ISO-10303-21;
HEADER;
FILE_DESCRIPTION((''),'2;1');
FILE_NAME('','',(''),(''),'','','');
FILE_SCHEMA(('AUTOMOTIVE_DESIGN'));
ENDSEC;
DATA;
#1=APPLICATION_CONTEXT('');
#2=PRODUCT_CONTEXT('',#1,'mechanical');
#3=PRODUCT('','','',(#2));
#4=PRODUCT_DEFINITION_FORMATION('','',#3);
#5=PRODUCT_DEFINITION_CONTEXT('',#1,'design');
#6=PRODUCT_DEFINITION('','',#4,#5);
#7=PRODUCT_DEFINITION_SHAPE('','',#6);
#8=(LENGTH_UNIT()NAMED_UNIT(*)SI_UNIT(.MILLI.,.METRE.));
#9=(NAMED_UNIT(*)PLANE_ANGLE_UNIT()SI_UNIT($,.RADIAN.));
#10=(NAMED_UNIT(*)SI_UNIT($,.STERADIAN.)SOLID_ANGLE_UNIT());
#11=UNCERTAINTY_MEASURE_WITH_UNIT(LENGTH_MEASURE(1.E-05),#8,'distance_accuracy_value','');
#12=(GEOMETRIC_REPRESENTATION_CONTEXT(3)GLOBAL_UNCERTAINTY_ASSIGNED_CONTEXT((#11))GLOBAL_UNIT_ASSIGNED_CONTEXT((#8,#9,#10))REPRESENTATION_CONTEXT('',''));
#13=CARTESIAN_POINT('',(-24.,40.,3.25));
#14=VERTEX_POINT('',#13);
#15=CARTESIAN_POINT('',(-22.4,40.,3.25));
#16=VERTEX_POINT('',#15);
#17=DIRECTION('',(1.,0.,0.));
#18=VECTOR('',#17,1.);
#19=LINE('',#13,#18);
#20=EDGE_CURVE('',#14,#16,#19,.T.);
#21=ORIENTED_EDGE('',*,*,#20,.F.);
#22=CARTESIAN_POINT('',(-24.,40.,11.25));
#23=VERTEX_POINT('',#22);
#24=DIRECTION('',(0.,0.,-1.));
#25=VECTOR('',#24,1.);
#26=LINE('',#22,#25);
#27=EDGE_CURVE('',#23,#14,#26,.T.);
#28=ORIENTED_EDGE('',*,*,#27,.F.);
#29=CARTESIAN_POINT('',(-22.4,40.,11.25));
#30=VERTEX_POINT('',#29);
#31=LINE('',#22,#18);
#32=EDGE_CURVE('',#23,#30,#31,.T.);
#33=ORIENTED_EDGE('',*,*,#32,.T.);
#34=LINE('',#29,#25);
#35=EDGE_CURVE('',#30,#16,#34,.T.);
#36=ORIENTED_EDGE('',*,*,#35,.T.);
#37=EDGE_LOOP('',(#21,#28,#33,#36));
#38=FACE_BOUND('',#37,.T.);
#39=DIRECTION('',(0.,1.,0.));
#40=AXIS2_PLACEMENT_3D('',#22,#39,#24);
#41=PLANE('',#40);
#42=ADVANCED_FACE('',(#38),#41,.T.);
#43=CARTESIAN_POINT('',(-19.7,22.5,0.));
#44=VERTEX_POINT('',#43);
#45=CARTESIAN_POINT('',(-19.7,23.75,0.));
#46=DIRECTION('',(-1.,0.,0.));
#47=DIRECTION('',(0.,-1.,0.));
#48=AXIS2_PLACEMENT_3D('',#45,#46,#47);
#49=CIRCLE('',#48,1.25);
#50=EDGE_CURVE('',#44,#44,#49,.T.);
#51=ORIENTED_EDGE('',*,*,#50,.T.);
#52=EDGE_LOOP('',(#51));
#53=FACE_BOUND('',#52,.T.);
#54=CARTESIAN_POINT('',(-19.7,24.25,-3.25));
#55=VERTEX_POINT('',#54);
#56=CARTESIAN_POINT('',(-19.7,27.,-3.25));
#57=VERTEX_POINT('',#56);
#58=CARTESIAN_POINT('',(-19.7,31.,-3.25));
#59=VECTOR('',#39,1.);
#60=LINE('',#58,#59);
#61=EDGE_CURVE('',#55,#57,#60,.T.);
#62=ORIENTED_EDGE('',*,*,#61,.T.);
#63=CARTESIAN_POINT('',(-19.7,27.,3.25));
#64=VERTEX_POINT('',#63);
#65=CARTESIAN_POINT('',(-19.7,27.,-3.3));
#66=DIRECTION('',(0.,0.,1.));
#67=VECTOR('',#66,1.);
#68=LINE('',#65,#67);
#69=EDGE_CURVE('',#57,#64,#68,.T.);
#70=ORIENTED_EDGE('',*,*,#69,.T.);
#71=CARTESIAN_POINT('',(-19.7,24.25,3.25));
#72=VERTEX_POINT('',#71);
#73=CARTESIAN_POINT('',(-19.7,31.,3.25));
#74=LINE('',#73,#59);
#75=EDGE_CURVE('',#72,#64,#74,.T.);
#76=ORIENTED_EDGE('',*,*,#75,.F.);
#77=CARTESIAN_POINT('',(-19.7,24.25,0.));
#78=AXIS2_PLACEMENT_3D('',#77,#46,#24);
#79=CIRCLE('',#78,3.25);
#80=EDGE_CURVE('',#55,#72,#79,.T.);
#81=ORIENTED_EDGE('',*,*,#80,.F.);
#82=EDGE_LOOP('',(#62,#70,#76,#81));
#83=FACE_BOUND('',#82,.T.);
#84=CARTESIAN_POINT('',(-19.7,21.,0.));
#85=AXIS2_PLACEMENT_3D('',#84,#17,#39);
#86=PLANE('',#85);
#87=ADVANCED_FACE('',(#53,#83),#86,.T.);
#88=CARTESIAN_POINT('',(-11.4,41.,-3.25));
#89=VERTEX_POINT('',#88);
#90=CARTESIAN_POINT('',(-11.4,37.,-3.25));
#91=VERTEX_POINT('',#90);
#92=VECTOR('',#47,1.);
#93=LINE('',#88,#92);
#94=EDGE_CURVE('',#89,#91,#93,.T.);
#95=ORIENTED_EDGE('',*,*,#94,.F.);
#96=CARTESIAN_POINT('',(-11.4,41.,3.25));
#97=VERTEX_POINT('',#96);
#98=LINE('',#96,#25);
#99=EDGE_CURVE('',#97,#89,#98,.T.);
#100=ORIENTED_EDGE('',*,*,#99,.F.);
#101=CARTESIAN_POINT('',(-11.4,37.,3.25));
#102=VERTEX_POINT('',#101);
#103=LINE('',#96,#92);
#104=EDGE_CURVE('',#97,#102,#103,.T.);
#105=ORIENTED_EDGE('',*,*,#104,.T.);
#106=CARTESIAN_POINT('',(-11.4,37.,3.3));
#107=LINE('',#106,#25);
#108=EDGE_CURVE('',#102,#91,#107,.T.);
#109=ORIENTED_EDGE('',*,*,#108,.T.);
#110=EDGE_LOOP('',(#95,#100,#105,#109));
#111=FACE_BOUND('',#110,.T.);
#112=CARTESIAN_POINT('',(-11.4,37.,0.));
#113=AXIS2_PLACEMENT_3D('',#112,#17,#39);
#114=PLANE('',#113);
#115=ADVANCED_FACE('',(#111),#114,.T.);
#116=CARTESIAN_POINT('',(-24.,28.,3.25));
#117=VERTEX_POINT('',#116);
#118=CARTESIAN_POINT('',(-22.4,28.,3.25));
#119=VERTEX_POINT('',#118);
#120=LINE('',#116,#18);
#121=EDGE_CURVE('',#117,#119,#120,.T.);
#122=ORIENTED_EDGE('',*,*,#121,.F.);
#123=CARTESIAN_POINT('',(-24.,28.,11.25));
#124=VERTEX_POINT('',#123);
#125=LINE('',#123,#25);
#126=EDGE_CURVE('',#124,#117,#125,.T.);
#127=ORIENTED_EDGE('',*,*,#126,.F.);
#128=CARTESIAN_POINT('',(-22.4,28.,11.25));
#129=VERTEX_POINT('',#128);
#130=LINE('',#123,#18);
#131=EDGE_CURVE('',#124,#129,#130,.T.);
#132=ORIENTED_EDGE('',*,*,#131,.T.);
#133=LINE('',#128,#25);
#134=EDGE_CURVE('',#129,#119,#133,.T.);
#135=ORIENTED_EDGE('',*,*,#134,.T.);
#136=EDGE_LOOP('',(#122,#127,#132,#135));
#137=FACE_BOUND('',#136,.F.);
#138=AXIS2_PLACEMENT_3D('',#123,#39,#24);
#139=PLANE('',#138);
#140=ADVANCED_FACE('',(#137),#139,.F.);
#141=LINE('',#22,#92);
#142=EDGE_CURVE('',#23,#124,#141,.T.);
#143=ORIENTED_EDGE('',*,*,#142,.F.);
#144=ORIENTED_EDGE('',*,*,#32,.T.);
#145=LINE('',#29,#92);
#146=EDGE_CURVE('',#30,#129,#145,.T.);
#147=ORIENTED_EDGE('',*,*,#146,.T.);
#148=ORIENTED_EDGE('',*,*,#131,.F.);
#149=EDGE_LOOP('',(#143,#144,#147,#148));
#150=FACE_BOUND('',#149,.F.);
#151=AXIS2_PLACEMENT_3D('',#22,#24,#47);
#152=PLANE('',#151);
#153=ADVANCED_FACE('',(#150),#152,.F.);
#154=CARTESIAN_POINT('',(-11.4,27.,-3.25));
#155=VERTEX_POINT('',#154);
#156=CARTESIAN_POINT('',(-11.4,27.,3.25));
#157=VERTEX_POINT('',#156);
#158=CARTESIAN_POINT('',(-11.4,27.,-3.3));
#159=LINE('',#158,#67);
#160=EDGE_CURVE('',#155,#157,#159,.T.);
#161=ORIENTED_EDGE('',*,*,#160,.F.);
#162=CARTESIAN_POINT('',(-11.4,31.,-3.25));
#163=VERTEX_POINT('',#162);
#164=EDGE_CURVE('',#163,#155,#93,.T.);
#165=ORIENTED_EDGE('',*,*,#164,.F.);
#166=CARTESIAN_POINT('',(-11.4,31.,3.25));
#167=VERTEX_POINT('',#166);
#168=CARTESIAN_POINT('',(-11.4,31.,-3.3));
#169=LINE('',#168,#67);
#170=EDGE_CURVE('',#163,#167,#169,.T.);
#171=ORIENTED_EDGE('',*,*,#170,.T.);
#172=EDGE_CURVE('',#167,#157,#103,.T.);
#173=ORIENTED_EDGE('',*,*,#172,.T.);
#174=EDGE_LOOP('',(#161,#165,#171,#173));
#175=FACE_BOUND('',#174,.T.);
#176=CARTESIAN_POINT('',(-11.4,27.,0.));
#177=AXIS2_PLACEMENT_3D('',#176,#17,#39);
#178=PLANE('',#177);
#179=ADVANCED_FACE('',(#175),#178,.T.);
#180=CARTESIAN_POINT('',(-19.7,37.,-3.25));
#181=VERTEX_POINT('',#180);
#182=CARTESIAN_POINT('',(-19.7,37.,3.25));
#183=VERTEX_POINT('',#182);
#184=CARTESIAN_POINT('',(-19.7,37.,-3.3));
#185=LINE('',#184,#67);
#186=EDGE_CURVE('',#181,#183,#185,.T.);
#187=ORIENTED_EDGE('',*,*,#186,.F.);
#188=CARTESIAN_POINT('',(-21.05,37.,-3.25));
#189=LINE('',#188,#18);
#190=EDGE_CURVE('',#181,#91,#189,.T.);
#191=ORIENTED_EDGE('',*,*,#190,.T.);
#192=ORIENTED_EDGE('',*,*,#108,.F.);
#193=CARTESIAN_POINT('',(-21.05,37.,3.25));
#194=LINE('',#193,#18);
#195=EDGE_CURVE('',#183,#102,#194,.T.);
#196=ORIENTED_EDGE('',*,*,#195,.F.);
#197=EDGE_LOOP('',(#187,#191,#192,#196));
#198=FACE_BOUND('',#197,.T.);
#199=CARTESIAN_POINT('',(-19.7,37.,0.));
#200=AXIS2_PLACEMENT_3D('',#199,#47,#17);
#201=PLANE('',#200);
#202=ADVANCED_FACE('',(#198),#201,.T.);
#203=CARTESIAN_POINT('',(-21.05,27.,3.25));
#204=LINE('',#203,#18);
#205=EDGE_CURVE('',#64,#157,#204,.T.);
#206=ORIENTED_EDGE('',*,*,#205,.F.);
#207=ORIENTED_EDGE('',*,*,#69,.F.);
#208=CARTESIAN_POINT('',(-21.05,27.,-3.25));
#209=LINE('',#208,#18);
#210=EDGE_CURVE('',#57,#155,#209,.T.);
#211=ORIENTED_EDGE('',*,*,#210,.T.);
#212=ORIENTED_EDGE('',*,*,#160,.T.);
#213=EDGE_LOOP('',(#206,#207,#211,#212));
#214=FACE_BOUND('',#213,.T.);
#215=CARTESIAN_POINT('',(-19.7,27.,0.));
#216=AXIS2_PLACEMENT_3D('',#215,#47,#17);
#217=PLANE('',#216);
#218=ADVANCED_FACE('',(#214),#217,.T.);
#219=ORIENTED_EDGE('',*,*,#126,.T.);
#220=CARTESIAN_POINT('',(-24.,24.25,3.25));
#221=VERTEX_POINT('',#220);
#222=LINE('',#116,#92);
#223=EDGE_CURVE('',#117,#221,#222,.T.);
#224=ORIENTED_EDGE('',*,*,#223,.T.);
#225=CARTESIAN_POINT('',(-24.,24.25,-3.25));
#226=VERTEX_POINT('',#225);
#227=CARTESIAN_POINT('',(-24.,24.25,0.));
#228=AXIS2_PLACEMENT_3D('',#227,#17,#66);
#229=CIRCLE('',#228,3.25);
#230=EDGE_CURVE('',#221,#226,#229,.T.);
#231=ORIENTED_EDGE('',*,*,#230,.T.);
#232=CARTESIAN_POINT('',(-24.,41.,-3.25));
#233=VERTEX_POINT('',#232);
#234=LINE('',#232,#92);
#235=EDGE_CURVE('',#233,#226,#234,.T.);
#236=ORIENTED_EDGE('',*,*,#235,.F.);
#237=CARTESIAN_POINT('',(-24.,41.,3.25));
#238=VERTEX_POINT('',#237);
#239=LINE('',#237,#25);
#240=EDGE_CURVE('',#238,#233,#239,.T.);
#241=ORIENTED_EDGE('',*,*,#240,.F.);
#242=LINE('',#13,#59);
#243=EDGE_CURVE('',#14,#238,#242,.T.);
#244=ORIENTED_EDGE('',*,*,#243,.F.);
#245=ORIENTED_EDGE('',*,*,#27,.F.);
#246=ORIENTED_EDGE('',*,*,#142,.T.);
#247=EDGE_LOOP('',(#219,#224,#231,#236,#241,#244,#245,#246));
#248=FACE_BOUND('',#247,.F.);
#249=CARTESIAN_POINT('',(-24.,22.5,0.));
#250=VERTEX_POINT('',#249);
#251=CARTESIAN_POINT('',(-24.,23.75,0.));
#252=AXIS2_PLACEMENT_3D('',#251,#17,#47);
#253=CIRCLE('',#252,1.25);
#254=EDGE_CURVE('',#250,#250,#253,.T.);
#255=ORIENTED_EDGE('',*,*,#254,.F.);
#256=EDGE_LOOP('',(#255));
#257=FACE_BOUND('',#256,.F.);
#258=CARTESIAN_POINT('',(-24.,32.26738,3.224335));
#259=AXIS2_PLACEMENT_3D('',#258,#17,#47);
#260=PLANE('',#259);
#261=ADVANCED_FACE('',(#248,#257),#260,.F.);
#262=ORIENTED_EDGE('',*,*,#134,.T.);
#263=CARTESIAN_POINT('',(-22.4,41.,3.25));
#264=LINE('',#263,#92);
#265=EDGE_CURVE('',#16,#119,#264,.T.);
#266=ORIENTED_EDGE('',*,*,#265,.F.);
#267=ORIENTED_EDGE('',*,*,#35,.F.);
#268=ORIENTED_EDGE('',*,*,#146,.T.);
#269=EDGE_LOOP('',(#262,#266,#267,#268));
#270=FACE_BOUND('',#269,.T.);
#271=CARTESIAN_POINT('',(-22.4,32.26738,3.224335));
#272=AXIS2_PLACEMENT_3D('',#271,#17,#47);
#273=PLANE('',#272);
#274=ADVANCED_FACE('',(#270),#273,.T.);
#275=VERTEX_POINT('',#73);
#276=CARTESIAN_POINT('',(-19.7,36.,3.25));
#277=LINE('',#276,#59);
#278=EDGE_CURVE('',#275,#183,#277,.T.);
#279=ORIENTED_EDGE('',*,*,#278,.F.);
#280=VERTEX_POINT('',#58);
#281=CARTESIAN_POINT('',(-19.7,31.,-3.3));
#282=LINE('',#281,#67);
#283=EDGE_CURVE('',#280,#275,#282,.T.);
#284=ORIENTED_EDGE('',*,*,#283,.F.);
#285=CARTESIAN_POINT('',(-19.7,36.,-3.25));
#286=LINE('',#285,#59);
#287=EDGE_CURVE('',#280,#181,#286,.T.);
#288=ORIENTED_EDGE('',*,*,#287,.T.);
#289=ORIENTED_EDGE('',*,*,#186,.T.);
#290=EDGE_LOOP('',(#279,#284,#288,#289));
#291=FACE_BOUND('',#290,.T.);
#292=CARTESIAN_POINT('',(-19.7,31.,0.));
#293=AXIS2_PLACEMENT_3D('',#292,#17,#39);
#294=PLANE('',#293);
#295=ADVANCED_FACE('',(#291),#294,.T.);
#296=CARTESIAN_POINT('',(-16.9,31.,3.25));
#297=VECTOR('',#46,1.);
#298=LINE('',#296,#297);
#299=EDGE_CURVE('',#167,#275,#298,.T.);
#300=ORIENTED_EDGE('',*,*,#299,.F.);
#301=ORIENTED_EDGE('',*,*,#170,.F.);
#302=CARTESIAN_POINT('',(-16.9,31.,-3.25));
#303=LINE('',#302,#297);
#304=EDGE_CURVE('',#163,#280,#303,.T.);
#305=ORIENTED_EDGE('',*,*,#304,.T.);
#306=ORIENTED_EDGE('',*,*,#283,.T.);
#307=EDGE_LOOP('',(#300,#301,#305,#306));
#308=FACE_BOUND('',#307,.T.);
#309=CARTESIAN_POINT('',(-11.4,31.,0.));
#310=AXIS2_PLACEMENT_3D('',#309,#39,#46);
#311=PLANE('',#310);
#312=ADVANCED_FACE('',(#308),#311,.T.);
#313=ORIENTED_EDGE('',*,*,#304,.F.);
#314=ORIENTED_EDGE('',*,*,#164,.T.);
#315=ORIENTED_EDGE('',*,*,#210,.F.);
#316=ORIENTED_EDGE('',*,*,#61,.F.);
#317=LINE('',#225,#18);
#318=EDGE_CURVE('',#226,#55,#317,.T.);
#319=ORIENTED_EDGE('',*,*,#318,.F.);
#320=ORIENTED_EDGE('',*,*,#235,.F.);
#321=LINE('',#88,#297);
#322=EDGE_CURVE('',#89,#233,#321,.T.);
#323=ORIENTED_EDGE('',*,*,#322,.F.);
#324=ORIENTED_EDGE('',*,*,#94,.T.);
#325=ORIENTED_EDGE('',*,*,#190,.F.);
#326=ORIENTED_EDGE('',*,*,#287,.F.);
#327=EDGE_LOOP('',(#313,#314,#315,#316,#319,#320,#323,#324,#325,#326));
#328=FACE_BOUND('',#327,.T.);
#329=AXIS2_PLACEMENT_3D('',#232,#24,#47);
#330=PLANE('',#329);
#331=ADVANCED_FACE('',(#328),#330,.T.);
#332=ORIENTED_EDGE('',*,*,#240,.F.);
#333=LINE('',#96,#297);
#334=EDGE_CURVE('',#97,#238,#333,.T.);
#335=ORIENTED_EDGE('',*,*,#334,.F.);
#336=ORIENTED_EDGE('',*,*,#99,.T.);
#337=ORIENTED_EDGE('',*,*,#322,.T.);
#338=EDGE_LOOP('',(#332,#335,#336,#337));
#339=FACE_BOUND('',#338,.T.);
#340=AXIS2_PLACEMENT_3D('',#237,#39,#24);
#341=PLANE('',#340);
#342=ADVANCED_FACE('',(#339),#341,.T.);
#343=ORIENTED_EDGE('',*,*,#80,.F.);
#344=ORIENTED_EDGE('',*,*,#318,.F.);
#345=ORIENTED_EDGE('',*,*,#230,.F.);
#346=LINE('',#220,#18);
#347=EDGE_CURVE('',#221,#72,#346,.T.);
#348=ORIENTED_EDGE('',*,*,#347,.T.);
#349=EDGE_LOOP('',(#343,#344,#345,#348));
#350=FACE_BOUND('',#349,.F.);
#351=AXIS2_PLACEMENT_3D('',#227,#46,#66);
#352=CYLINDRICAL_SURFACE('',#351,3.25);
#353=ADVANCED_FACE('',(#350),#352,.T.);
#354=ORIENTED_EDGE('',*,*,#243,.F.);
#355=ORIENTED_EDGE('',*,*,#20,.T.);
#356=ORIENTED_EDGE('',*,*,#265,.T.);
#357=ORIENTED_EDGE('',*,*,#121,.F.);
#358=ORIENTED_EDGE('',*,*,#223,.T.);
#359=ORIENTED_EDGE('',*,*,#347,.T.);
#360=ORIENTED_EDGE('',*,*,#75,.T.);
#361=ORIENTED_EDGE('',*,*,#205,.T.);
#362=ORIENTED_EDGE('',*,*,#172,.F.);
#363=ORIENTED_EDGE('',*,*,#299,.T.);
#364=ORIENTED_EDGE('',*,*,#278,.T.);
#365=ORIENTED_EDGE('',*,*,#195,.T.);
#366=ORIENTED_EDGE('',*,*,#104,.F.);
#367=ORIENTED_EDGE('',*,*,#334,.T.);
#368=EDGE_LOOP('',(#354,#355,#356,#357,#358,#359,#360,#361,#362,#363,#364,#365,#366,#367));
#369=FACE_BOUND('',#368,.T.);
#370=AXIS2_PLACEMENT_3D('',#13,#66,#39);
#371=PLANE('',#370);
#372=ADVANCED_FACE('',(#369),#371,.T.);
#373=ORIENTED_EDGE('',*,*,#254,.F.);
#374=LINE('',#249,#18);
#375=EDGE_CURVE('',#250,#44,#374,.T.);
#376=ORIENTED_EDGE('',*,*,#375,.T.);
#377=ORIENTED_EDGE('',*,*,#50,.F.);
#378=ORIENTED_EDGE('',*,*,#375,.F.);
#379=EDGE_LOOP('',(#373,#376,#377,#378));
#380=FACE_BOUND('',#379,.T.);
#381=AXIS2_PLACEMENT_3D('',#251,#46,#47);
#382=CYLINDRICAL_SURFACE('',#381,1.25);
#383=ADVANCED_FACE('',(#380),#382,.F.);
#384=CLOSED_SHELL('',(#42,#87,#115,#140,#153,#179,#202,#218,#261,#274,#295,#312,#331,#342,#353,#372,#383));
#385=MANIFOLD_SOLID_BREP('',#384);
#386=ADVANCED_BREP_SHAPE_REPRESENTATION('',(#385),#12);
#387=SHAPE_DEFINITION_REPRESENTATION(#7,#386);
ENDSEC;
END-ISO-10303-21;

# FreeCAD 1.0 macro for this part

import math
import FreeCAD as App
import Part
import Sketcher


def add_polygon(sketch, points):
    """Adds a closed chain of lines whose ends are joined by coincident constraints."""
    first, n = sketch.GeometryCount, len(points)
    for a, b in zip(points, points[1:] + points[:1]):
        sketch.addGeometry(Part.LineSegment(App.Vector(*a, 0), App.Vector(*b, 0)), False)
    for i in range(n):
        sketch.addConstraint(Sketcher.Constraint("Coincident", first + i, 2, first + (i + 1) % n, 1))

doc = App.newDocument("Part")
body = doc.addObject("PartDesign::Body", "Body")

# Sketch on XY plane
sketch1 = body.newObject("Sketcher::SketchObject", "Sketch")
sketch1.AttachmentSupport = (doc.getObject("XY_Plane"), [""])
sketch1.MapMode = "FlatFace"
sketch1.addGeometry(Part.LineSegment(App.Vector(-6, 0, 0), App.Vector(6, 0, 0)), False)
sketch1.addGeometry(Part.LineSegment(App.Vector(6, 0, 0), App.Vector(6, 8, 0)), False)
sketch1.addGeometry(Part.LineSegment(App.Vector(6, 8, 0), App.Vector(9.8, 8, 0)), False)
sketch1.addGeometry(Part.ArcOfCircle(Part.Circle(App.Vector(9.8, 11.2, 0), App.Vector(0, 0, 1), 3.2), math.radians(-90), math.radians(90)), False)
sketch1.addGeometry(Part.LineSegment(App.Vector(9.8, 14.5, 0), App.Vector(-7, 14.5, 0)), False)
sketch1.addGeometry(Part.LineSegment(App.Vector(-7, 14.5, 0), App.Vector(-7, 8, 0)), False)
sketch1.addGeometry(Part.LineSegment(App.Vector(-7, 8, 0), App.Vector(-6, 8, 0)), False)
sketch1.addGeometry(Part.LineSegment(App.Vector(-6, 8, 0), App.Vector(-6, 0, 0)), False)
sketch1.addGeometry(Part.Circle(App.Vector(10.2, 11.2, 0), App.Vector(0, 0, 1), 1.2), False)
sketch1.addConstraint(Sketcher.Constraint("Coincident", 0, 2, 1, 1))
sketch1.addConstraint(Sketcher.Constraint("Coincident", 1, 2, 2, 1))
sketch1.addConstraint(Sketcher.Constraint("Tangent", 2, 2, 3, 1))
sketch1.addConstraint(Sketcher.Constraint("Tangent", 3, 2, 4, 1))
sketch1.addConstraint(Sketcher.Constraint("Coincident", 4, 2, 5, 1))
sketch1.addConstraint(Sketcher.Constraint("Coincident", 5, 2, 6, 1))
sketch1.addConstraint(Sketcher.Constraint("Coincident", 6, 2, 7, 1))
sketch1.addConstraint(Sketcher.Constraint("Coincident", 7, 2, 0, 1))
sketch1.addConstraint(Sketcher.Constraint("Horizontal", 0))
sketch1.addConstraint(Sketcher.Constraint("Vertical", 1))
sketch1.addConstraint(Sketcher.Constraint("Horizontal", 2))
sketch1.addConstraint(Sketcher.Constraint("Horizontal", 4))
sketch1.addConstraint(Sketcher.Constraint("Vertical", 5))
sketch1.addConstraint(Sketcher.Constraint("Horizontal", 6))
sketch1.addConstraint(Sketcher.Constraint("Vertical", 7))
sketch1.addConstraint(Sketcher.Constraint("Symmetric", 0, 2, 7, 2, -1, 1))
sketch1.addConstraint(Sketcher.Constraint("Horizontal", 3, 3, 8, 3))
sketch1.addConstraint(Sketcher.Constraint("Horizontal", 2, 2, 5, 2))
sketch1.addConstraint(Sketcher.Constraint("Diameter", 8, 2.5))
sketch1.addConstraint(Sketcher.Constraint("DistanceX", 0, 1, 0, 2, 12.0))
sketch1.addConstraint(Sketcher.Constraint("DistanceX", 6, 1, 6, 2, 1.0))
sketch1.addConstraint(Sketcher.Constraint("DistanceY", 1, 1, 1, 2, 8.0))
sketch1.addConstraint(Sketcher.Constraint("Radius", 3, 3.25))
sketch1.addConstraint(Sketcher.Constraint("DistanceX", 2, 1, 2, 2, 3.75))
sketch1.addConstraint(Sketcher.Constraint("DistanceX", 3, 3, 8, 3, 0.5))
pad1 = body.newObject("PartDesign::Pad", "Pad")
pad1.Profile = sketch1
pad1.Length = 1.6
body2 = doc.addObject("PartDesign::Body", "Body001")

# Sketch on XY plane
sketch2 = body2.newObject("Sketcher::SketchObject", "Sketch001")
sketch2.AttachmentSupport = (doc.getObject("XY_Plane001"), [""])
sketch2.MapMode = "FlatFace"
sketch2.addGeometry(Part.LineSegment(App.Vector(9.8, 3.2, 0), App.Vector(-7, 3.2, 0)), False)
sketch2.addGeometry(Part.LineSegment(App.Vector(-7, 3.2, 0), App.Vector(-7, -3.2, 0)), False)
sketch2.addGeometry(Part.LineSegment(App.Vector(-7, -3.2, 0), App.Vector(9.8, -3.2, 0)), False)
sketch2.addGeometry(Part.ArcOfCircle(Part.Circle(App.Vector(9.8, 0, 0), App.Vector(0, 0, 1), 3.2), math.radians(-90), math.radians(90)), False)
sketch2.addGeometry(Part.Circle(App.Vector(10.2, 0, 0), App.Vector(0, 0, 1), 1.2), False)
sketch2.addConstraint(Sketcher.Constraint("Coincident", 0, 2, 1, 1))
sketch2.addConstraint(Sketcher.Constraint("Coincident", 1, 2, 2, 1))
sketch2.addConstraint(Sketcher.Constraint("Tangent", 2, 2, 3, 1))
sketch2.addConstraint(Sketcher.Constraint("Tangent", 3, 2, 0, 1))
sketch2.addConstraint(Sketcher.Constraint("Horizontal", 0))
sketch2.addConstraint(Sketcher.Constraint("Vertical", 1))
sketch2.addConstraint(Sketcher.Constraint("Horizontal", 2))
sketch2.addConstraint(Sketcher.Constraint("PointOnObject", 3, 3, -1))
sketch2.addConstraint(Sketcher.Constraint("PointOnObject", 4, 3, -1))
sketch2.addConstraint(Sketcher.Constraint("Diameter", 4, 2.5))
sketch2.addConstraint(Sketcher.Constraint("Radius", 3, 3.25))
sketch2.addConstraint(Sketcher.Constraint("DistanceX", 0, 2, -1, 1, 7.0))
sketch2.addConstraint(Sketcher.Constraint("DistanceX", 0, 2, 0, 1, 16.75))
sketch2.addConstraint(Sketcher.Constraint("DistanceX", 3, 3, 4, 3, 0.5))
pad2 = body2.newObject("PartDesign::Pad", "Pad001")
pad2.Profile = sketch2
pad2.Length = 11
body3 = doc.addObject("PartDesign::Body", "Body002")

# Sketch on XZ plane
sketch3 = body3.newObject("Sketcher::SketchObject", "Sketch002")
sketch3.AttachmentSupport = (doc.getObject("XZ_Plane002"), [""])
sketch3.MapMode = "FlatFace"
add_polygon(sketch3, [(-7, 0), (13, 0), (13, 2.7), (7, 2.7), (7, 11), (3, 11), (3, 2.7), (-3, 2.7), (-3, 11), (-7, 11)])  # lines 0-9
sketch3.addConstraint(Sketcher.Constraint("Horizontal", 0))
sketch3.addConstraint(Sketcher.Constraint("Vertical", 1))
sketch3.addConstraint(Sketcher.Constraint("Horizontal", 2))
sketch3.addConstraint(Sketcher.Constraint("Vertical", 3))
sketch3.addConstraint(Sketcher.Constraint("Horizontal", 4))
sketch3.addConstraint(Sketcher.Constraint("Vertical", 5))
sketch3.addConstraint(Sketcher.Constraint("Horizontal", 6))
sketch3.addConstraint(Sketcher.Constraint("Vertical", 7))
sketch3.addConstraint(Sketcher.Constraint("Horizontal", 8))
sketch3.addConstraint(Sketcher.Constraint("Vertical", 9))
sketch3.addConstraint(Sketcher.Constraint("Symmetric", 4, 2, 7, 2, -2))
sketch3.addConstraint(Sketcher.Constraint("PointOnObject", 0, 2, -1))
sketch3.addConstraint(Sketcher.Constraint("Horizontal", 2, 2, 5, 2))
sketch3.addConstraint(Sketcher.Constraint("Equal", 2, 6))
sketch3.addConstraint(Sketcher.Constraint("Equal", 4, 8))
sketch3.addConstraint(Sketcher.Constraint("DistanceX", 0, 1, 0, 2, 20.0))
sketch3.addConstraint(Sketcher.Constraint("DistanceX", 2, 2, 2, 1, 6.0))
sketch3.addConstraint(Sketcher.Constraint("DistanceY", 9, 2, 9, 1, 11.0))
sketch3.addConstraint(Sketcher.Constraint("DistanceY", 1, 1, 1, 2, 2.7))
pad3 = body3.newObject("PartDesign::Pad", "Pad002")
pad3.Profile = sketch3
pad3.Length = 6.6
pad3.Midplane = True
doc.recompute()

boolean = body3.newObject("PartDesign::Boolean", "Boolean")
boolean.Type = "Common"
boolean.addObjects([body2])
body4 = doc.addObject("PartDesign::Body", "Body003")
doc.recompute()

body3.Placement = App.Placement(App.Vector(0, 11.25, 1.6), App.Rotation(App.Vector(0, 0, 1), 0))
boolean2 = body4.newObject("PartDesign::Boolean", "Boolean001")
boolean2.Type = "Fuse"
boolean2.addObjects([body3])
doc.recompute()

boolean3 = body4.newObject("PartDesign::Boolean", "Boolean002")
boolean3.Type = "Fuse"
boolean3.addObjects([body])
body5 = doc.addObject("PartDesign::Body", "Body004")
doc.recompute()

body4.Placement = App.Placement(App.Vector(0, 0, 0), App.Rotation(App.Vector(1, 0, 0), 270))
boolean4 = body5.newObject("PartDesign::Boolean", "Boolean003")
boolean4.Type = "Fuse"
boolean4.addObjects([body4])
body6 = doc.addObject("PartDesign::Body", "Body005")
doc.recompute()

body5.Placement = App.Placement(App.Vector(-24, 34, 11.25), App.Rotation(App.Vector(0, 0, 1), 270))
boolean5 = body6.newObject("PartDesign::Boolean", "Boolean004")
boolean5.Type = "Fuse"
boolean5.addObjects([body5])

doc.recompute()
